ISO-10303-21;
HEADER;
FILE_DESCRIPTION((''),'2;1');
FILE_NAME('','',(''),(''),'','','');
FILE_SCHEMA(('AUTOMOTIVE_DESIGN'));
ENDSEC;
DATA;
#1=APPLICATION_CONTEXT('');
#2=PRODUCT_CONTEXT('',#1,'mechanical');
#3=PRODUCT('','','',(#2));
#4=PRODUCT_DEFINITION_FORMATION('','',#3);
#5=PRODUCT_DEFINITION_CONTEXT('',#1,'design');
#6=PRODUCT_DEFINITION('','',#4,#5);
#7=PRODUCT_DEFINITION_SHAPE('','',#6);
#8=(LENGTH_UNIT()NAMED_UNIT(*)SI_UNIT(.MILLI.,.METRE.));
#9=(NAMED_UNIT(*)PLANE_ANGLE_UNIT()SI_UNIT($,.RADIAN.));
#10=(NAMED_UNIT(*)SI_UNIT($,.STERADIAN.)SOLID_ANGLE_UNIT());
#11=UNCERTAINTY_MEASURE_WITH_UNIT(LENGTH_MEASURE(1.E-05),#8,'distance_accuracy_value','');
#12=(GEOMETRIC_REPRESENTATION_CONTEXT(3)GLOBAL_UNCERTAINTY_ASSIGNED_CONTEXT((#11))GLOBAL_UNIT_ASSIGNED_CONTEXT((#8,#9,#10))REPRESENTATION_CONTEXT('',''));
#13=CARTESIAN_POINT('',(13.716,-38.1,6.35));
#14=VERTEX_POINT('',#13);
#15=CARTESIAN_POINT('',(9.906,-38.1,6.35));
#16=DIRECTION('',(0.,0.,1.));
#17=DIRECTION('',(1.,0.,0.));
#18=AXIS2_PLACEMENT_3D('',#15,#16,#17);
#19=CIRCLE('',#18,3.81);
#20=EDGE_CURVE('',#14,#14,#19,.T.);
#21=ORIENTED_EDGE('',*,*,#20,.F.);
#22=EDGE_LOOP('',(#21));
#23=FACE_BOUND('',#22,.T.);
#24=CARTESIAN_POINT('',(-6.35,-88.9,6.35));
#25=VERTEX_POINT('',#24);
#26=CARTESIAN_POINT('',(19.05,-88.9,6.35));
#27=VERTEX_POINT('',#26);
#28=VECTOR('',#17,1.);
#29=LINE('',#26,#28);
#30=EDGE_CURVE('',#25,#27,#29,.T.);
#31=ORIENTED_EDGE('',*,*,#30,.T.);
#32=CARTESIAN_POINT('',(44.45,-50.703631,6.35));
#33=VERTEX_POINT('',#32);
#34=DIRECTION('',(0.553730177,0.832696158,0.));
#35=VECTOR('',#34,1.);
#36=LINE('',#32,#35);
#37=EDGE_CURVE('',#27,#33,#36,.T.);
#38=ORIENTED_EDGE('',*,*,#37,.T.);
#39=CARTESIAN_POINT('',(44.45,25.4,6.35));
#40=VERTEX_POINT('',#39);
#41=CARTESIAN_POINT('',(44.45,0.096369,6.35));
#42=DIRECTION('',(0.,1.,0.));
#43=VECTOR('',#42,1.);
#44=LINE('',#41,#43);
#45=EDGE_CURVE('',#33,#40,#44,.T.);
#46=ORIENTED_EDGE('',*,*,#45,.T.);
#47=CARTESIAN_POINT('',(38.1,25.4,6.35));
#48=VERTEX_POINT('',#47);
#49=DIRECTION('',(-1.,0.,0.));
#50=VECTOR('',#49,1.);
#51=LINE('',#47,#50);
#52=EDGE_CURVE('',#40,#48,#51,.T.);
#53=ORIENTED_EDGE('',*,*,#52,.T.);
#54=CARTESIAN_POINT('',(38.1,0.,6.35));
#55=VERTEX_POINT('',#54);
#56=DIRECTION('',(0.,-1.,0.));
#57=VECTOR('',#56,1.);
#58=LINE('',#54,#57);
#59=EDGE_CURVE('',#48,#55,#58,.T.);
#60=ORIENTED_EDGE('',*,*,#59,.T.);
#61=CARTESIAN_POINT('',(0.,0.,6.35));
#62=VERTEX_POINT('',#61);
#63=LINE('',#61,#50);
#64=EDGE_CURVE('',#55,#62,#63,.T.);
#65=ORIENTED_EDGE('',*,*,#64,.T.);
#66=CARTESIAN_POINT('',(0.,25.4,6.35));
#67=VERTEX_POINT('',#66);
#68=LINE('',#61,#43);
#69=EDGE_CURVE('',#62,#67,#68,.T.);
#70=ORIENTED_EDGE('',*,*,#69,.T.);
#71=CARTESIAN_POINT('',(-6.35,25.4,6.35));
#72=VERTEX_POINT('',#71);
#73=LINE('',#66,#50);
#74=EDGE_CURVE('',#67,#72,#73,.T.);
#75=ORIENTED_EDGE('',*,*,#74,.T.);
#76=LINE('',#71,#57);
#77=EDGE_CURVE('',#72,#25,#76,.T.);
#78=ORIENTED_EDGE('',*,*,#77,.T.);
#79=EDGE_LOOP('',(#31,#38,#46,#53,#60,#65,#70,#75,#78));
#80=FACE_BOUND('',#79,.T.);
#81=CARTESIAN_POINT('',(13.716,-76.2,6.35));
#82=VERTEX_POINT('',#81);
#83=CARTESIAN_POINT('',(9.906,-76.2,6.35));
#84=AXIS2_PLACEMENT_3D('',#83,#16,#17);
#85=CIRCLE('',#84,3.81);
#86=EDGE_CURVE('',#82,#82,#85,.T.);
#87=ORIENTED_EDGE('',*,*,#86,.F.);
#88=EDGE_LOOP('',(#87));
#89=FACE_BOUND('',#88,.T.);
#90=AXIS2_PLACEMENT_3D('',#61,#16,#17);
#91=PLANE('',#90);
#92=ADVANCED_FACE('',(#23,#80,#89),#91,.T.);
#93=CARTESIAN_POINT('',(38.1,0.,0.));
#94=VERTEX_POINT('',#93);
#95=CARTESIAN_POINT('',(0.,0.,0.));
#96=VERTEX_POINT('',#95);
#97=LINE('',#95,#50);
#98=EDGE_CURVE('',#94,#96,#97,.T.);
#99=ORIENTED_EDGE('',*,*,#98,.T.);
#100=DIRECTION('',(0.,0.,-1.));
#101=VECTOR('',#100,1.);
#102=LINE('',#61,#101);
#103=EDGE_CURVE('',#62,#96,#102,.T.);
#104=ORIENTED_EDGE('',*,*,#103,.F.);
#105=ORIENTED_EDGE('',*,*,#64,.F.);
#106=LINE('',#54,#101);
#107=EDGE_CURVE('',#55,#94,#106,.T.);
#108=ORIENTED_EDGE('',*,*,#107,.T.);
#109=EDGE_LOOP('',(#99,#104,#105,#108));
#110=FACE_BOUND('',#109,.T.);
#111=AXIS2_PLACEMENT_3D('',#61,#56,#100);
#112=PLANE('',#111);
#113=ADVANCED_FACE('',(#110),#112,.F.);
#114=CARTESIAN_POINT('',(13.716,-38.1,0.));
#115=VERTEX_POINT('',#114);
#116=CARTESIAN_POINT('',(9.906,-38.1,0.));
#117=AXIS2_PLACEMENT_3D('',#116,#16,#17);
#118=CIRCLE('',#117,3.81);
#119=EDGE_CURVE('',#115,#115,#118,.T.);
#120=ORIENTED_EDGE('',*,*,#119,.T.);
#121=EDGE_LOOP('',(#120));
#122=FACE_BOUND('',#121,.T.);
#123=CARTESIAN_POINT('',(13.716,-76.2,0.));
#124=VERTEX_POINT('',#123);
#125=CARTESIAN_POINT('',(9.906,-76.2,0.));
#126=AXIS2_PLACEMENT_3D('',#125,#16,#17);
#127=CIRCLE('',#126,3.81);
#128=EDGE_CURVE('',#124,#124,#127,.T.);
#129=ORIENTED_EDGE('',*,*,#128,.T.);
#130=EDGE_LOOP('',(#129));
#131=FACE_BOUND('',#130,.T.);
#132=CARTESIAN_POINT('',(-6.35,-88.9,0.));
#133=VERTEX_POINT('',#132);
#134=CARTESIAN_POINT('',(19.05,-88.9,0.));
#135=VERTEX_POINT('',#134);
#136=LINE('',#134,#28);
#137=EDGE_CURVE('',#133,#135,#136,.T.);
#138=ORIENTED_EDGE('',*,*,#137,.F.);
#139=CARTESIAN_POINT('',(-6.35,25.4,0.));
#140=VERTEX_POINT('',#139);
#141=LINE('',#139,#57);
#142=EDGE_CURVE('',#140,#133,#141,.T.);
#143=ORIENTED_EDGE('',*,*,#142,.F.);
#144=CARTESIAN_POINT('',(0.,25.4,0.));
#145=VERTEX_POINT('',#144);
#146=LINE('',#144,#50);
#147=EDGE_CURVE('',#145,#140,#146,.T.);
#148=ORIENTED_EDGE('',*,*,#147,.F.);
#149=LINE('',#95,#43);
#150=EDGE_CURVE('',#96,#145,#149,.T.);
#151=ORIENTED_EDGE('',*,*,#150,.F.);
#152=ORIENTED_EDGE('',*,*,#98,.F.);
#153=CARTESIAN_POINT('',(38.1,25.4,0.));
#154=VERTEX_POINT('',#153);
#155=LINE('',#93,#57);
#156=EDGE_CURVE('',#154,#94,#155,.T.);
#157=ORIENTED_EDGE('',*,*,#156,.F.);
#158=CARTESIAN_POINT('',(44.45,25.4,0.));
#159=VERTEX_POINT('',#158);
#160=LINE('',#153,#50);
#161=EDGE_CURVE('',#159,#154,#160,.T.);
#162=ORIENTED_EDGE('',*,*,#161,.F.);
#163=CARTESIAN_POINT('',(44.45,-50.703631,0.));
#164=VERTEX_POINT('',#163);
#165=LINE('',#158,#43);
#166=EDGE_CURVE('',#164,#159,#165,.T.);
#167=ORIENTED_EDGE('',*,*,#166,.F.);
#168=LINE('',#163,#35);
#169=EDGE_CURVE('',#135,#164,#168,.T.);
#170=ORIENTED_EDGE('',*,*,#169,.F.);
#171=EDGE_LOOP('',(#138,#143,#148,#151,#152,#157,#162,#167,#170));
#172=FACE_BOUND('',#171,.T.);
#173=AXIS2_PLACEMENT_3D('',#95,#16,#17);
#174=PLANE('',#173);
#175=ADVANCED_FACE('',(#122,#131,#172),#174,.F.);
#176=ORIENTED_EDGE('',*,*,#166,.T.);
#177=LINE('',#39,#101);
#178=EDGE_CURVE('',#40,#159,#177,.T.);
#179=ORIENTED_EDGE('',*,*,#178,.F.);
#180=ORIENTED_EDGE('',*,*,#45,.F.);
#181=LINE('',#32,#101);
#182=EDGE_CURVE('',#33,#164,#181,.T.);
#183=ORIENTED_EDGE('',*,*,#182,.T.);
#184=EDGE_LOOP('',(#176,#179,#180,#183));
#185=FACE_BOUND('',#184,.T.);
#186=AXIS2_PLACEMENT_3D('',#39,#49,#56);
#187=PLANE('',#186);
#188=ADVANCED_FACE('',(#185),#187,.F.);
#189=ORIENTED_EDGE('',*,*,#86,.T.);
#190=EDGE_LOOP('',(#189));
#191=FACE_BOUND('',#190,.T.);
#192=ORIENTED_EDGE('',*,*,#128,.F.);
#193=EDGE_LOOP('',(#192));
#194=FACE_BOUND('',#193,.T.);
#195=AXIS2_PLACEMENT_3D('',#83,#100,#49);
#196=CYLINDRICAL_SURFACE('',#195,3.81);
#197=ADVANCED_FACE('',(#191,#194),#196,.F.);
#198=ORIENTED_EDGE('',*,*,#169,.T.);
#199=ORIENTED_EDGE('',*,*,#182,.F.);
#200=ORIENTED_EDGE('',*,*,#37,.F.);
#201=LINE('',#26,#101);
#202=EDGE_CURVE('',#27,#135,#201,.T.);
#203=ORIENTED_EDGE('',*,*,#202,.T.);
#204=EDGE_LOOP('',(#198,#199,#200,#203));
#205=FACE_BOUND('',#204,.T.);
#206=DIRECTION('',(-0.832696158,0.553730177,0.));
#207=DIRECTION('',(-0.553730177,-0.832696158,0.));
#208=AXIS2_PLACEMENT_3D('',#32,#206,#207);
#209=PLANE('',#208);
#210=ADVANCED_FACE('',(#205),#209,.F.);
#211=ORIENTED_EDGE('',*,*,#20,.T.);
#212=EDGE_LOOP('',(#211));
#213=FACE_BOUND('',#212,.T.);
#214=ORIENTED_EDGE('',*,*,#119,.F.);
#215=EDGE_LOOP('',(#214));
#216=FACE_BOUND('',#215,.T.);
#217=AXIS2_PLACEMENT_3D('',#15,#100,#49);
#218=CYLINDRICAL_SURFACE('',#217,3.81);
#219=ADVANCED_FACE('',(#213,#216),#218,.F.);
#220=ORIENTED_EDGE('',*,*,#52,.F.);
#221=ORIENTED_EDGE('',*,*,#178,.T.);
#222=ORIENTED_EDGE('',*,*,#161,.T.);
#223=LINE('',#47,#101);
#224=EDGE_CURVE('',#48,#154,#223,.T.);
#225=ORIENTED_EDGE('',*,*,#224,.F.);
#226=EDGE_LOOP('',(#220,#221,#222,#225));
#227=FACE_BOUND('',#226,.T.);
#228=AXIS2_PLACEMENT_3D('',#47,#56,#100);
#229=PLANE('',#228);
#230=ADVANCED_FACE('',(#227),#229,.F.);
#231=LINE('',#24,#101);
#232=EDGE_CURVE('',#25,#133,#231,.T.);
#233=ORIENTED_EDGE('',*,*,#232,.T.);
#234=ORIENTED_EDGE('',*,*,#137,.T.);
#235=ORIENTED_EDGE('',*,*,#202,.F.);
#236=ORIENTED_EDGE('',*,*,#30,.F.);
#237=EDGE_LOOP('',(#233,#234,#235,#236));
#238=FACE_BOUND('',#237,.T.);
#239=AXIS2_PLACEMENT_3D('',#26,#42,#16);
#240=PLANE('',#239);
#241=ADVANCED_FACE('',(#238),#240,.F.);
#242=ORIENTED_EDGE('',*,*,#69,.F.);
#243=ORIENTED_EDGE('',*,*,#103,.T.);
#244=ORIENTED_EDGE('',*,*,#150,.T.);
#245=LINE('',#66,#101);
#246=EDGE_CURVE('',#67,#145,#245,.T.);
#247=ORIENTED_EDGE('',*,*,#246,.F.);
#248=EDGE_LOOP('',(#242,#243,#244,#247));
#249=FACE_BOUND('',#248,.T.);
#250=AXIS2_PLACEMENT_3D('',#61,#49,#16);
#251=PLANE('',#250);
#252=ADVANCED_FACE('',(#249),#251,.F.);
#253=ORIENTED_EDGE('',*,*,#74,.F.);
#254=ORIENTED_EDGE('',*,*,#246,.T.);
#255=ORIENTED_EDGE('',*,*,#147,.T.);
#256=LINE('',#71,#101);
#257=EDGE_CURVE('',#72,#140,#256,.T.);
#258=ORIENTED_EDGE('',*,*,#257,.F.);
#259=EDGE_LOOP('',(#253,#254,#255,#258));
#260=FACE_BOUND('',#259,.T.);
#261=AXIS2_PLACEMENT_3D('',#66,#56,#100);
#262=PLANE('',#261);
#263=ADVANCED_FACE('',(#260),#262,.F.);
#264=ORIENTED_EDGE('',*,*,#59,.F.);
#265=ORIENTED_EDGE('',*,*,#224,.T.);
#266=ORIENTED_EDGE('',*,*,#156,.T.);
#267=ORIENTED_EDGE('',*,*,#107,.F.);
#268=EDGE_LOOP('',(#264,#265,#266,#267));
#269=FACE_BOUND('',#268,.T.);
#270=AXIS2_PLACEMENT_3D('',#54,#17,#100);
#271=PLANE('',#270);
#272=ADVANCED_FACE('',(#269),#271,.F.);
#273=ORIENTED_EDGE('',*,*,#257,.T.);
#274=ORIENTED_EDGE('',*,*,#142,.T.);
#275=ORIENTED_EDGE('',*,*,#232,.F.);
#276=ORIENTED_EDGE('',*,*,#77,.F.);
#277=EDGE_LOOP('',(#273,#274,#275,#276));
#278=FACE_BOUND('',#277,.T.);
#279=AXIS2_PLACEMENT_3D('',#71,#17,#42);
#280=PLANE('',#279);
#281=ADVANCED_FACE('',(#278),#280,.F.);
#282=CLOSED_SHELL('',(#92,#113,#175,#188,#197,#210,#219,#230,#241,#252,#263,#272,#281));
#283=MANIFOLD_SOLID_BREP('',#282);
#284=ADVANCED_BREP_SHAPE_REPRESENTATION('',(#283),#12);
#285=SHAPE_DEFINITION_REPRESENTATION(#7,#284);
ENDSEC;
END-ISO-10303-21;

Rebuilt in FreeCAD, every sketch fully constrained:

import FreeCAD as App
import Part
import Sketcher
Q = App.Units.Quantity


def add_polygon(sketch, points):
    """Adds a closed chain of lines whose ends are joined by coincident constraints."""
    first, n = sketch.GeometryCount, len(points)
    for a, b in zip(points, points[1:] + points[:1]):
        sketch.addGeometry(Part.LineSegment(App.Vector(*a, 0), App.Vector(*b, 0)), False)
    for i in range(n):
        sketch.addConstraint(Sketcher.Constraint("Coincident", first + i, 2, first + (i + 1) % n, 1))

doc = App.newDocument("Part")
params = doc.addObject("Spreadsheet::Sheet", "Params")
for row, (alias, value) in enumerate([
    ("sketch1_diameter", "0.3 in"),
    ("sketch1_width", "1 in"),
    ("sketch1_width2", "1.5 in"),
    ("sketch1_height", "4.5 in"),
    ("pad1_length", "0.25 in"),
], start=1):
    params.set(f"A{row}", alias)
    params.set(f"B{row}", "=" + value)
    params.setAlias(f"B{row}", alias)

body = doc.addObject("PartDesign::Body", "Body")

sketch1 = doc.addObject("Sketcher::SketchObject", "Sketch")
body.addObject(sketch1)
sketch1.AttachmentSupport = (doc.XY_Plane, [""])
sketch1.MapMode = "FlatFace"
add_polygon(sketch1, [(0, 0), (0, 25.4), (-6.3, 25.4), (-6.3, -88.9), (19.1, -88.9), (44.5, -50.7), (44.5, 25.4), (38.1, 25.4), (38.1, 0)])
sketch1.addGeometry(Part.Circle(App.Vector(9.9, -76.2, 0), App.Vector(0, 0, 1), 3.8), False)
sketch1.addGeometry(Part.Circle(App.Vector(9.9, -38.1, 0), App.Vector(0, 0, 1), 3.8), False)
sketch1.addConstraint([
    Sketcher.Constraint("Vertical", 0),
    Sketcher.Constraint("Horizontal", 1),
    Sketcher.Constraint("Vertical", 2),
    Sketcher.Constraint("Horizontal", 3),
    Sketcher.Constraint("Vertical", 5),
    Sketcher.Constraint("Horizontal", 6),
    Sketcher.Constraint("Vertical", 7),
    Sketcher.Constraint("Horizontal", 8),
    Sketcher.Constraint("Coincident", 8, 2, -1, 1),
    Sketcher.Constraint("Equal", 9, 10),
    Sketcher.Constraint("Horizontal", 1, 2, 5, 2),
    Sketcher.Constraint("Vertical", 9, 3, 10, 3),
    Sketcher.Constraint("Equal", 1, 6),
    Sketcher.Constraint("Equal", 3, 0),
    Sketcher.Constraint("Diameter", 9, Q("0.3 in")),
    Sketcher.Constraint("DistanceX", 3, 1, 3, 2, Q("1 in")),
    Sketcher.Constraint("DistanceX", 8, 2, 8, 1, Q("1.5 in")),
    Sketcher.Constraint("DistanceY", 2, 2, 2, 1, Q("4.5 in")),
    Sketcher.Constraint("DistanceY", 9, 3, -1, 1, Q("3 in")),
    Sketcher.Constraint("DistanceY", 2, 2, 10, 3, Q("2 in")),
    Sketcher.Constraint("DistanceX", 3, 2, 4, 2, Q("1 in")),
    Sketcher.Constraint("DistanceX", -1, 1, 9, 3, Q("0.39 in")),
    Sketcher.Constraint("DistanceY", 5, 1, 5, 2, Q("76.103631 mm")),
])
sketch1.setExpression("Constraints[23]", "Params.sketch1_diameter")
sketch1.setExpression("Constraints[24]", "Params.sketch1_width")
sketch1.setExpression("Constraints[25]", "Params.sketch1_width2")
sketch1.setExpression("Constraints[26]", "Params.sketch1_height")
pad1 = doc.addObject("PartDesign::Pad", "Pad")
body.addObject(pad1)
pad1.Profile = sketch1
pad1.setExpression("Length", "Params.pad1_length")

doc.recompute()
